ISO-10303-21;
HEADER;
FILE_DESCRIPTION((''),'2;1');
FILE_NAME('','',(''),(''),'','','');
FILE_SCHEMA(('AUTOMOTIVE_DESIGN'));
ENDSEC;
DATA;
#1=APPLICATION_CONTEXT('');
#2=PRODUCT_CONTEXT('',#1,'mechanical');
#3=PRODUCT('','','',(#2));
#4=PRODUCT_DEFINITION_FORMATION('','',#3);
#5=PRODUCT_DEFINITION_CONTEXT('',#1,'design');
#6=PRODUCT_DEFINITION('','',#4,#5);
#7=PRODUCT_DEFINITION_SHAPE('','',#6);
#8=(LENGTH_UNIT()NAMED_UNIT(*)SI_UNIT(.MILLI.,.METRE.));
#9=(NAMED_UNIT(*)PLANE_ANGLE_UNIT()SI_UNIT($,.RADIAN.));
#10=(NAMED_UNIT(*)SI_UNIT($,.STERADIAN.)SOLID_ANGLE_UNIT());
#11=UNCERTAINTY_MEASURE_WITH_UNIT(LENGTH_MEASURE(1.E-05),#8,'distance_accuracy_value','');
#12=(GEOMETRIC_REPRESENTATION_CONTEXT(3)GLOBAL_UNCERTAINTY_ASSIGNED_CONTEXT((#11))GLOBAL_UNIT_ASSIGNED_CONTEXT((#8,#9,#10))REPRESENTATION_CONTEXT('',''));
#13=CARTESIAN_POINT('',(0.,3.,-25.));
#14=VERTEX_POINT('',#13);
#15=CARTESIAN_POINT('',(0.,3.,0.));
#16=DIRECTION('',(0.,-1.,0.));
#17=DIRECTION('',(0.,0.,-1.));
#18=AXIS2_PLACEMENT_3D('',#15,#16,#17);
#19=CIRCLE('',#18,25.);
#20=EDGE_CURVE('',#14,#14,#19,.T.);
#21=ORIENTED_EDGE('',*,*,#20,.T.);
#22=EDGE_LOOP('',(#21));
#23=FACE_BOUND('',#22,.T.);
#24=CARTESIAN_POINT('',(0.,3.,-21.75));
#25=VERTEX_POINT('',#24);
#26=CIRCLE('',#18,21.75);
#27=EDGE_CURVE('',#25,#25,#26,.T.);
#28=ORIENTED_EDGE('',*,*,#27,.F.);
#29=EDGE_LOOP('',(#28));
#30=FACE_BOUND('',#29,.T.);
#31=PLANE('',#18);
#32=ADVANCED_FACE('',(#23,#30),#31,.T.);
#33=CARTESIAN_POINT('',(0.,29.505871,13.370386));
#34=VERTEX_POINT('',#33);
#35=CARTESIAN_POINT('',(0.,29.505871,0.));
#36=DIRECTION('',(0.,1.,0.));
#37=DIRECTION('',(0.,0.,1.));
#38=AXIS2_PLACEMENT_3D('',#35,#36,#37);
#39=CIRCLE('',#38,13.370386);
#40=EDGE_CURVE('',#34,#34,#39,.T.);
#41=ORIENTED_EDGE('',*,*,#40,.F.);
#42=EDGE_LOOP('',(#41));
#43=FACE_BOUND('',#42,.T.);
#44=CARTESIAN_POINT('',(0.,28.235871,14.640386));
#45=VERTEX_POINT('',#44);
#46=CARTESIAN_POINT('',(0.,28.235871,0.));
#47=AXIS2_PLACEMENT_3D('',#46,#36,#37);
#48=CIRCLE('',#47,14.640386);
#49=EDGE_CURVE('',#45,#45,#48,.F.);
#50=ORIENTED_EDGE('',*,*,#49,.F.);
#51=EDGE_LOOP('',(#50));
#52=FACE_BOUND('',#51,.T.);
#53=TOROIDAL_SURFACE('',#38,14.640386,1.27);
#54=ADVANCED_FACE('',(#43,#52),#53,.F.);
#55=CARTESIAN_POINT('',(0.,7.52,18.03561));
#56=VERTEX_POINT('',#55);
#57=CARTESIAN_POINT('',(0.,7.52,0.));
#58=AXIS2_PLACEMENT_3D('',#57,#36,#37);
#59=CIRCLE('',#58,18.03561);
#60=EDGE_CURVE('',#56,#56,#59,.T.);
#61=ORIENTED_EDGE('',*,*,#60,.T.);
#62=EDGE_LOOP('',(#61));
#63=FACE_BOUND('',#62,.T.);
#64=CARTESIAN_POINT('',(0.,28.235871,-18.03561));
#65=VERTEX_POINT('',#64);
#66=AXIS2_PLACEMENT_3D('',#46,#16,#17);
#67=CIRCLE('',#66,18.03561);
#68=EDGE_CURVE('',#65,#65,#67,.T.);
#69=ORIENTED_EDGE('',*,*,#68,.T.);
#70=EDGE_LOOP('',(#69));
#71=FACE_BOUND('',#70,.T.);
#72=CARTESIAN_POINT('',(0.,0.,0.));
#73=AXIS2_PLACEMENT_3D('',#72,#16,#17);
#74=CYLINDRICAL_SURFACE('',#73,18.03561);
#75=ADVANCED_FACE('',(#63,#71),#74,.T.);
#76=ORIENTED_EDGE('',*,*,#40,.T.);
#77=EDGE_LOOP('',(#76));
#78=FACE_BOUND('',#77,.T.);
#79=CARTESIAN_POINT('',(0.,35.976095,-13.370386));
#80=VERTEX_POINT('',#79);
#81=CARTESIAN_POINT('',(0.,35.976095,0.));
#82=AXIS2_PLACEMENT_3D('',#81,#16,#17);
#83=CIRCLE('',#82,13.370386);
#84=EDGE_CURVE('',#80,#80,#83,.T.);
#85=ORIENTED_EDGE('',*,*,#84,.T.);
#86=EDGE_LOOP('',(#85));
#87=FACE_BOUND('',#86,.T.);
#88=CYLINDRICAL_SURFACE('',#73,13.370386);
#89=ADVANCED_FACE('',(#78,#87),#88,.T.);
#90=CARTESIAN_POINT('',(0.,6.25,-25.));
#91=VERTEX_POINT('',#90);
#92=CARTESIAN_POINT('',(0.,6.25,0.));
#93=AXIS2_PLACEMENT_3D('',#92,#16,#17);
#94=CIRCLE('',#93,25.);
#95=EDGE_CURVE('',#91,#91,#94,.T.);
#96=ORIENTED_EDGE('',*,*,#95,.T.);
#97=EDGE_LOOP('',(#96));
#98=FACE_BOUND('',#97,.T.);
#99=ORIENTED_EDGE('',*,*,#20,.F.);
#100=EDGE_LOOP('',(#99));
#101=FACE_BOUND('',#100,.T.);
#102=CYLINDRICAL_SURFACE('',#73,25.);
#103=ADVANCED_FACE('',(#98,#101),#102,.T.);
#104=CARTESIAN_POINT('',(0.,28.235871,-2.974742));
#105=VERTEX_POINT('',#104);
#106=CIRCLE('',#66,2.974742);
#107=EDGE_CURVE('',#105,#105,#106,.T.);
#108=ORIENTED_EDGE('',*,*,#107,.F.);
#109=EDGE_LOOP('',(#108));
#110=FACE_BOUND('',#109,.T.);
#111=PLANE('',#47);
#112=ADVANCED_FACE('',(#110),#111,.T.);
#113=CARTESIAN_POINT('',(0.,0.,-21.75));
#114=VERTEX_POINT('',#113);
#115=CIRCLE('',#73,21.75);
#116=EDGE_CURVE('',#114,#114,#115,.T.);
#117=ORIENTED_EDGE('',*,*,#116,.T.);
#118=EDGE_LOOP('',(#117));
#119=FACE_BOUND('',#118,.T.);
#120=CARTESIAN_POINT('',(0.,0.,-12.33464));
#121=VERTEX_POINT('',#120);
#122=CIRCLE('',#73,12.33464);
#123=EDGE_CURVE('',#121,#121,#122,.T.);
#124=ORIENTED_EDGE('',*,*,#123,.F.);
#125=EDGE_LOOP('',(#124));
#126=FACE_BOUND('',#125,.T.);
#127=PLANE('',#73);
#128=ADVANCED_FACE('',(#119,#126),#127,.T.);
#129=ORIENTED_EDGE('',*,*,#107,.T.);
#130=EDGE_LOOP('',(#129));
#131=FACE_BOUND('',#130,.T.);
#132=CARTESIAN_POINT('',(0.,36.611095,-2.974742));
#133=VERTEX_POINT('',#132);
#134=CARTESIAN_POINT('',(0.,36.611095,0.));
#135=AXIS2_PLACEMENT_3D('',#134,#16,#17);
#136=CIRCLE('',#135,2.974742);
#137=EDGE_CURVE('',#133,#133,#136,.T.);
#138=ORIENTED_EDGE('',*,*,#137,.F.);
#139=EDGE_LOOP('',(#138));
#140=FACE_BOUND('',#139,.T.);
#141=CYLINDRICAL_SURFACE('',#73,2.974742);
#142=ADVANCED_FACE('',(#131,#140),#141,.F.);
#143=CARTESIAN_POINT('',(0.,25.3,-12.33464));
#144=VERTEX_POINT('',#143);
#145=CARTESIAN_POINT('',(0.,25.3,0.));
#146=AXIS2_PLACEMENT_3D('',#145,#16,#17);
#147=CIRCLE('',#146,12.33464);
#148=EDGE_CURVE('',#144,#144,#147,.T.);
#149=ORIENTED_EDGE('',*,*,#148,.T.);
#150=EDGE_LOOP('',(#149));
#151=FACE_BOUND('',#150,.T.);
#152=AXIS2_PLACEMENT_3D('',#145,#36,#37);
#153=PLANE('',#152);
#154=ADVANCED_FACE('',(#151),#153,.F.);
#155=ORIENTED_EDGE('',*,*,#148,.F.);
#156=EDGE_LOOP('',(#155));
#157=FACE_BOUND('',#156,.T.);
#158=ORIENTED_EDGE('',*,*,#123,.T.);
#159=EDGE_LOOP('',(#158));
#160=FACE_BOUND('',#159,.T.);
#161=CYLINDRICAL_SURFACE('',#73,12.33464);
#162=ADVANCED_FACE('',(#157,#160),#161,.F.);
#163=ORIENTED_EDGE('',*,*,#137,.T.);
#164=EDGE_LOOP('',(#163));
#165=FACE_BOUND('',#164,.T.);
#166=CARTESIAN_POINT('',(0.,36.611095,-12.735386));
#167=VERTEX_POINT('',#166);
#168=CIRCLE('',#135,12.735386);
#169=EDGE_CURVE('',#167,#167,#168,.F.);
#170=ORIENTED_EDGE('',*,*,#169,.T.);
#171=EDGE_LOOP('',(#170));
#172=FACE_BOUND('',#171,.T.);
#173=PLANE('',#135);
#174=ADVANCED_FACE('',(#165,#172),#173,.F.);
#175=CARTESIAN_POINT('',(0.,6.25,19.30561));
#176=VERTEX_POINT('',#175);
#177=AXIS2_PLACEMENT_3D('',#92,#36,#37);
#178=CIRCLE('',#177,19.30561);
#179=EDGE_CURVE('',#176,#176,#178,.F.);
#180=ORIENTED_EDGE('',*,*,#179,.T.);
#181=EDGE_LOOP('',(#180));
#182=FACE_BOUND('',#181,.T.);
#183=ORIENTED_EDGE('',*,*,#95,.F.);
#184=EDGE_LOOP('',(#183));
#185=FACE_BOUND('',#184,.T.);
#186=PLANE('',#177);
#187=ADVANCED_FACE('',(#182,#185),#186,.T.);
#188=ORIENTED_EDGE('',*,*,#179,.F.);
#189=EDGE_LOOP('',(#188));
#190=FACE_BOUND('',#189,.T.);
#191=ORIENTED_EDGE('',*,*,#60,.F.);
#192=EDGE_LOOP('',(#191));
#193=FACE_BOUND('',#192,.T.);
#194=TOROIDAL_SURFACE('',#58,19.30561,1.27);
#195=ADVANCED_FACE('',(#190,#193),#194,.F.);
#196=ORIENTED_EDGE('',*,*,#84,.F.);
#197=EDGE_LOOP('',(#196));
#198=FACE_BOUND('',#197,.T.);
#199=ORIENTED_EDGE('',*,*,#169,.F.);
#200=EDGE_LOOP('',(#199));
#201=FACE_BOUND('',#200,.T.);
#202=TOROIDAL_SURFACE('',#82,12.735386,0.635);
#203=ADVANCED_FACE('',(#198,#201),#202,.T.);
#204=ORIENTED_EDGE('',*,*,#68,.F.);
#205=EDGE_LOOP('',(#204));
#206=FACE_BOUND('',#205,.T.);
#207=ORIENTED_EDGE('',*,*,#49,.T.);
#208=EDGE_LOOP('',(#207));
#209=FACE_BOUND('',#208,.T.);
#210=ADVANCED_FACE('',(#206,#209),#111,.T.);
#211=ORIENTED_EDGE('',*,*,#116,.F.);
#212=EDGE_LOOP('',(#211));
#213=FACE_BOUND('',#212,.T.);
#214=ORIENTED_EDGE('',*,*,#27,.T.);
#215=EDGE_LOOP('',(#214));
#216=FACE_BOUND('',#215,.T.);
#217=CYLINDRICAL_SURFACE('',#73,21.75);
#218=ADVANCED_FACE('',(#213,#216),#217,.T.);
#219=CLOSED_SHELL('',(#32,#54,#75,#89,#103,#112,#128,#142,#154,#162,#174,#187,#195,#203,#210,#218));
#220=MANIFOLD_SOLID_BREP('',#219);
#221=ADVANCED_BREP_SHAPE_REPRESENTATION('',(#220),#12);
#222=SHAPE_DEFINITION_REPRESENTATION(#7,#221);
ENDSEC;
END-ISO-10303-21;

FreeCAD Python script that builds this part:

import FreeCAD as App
import Part
import Sketcher
from FreeCAD import Vector
Q = App.Units.Quantity


def edges_at(feature, points):
    """Names of the edges that pass closest to the given points."""
    edges = feature.Shape.Edges
    near = lambda p: min(range(len(edges)), key=lambda i: edges[i].distToShape(Part.Vertex(*p))[0])
    return sorted({f"Edge{near(p) + 1}" for p in points})


def add_polygon(sketch, points):
    """Adds a closed chain of lines whose ends are joined by coincident constraints."""
    first, n = sketch.GeometryCount, len(points)
    for a, b in zip(points, points[1:] + points[:1]):
        sketch.addGeometry(Part.LineSegment(App.Vector(*a, 0), App.Vector(*b, 0)), False)
    for i in range(n):
        sketch.addConstraint(Sketcher.Constraint("Coincident", first + i, 2, first + (i + 1) % n, 1))

doc = App.newDocument("Part")
body = doc.addObject("PartDesign::Body", "Body")

sketch1 = body.newObject("Sketcher::SketchObject", "Sketch")
sketch1.AttachmentSupport = (doc.getObject("XY_Plane"), [""])
sketch1.MapMode = "FlatFace"
add_polygon(sketch1, [(12.33464, 0), (21.75, 0), (21.75, 3), (25, 3), (25, 6.25), (18.03561, 6.25), (18.03561, 28.235871), (13.370386, 28.235871), (13.370386, 36.611095), (2.974742, 36.611095), (2.974742, 28.235871), (0, 28.235871), (0, 25.3), (12.33464, 25.3)])
sketch1.addConstraint([
    Sketcher.Constraint("Horizontal", 0),
    Sketcher.Constraint("Vertical", 1),
    Sketcher.Constraint("Horizontal", 2),
    Sketcher.Constraint("Vertical", 3),
    Sketcher.Constraint("Horizontal", 4),
    Sketcher.Constraint("Vertical", 5),
    Sketcher.Constraint("Horizontal", 6),
    Sketcher.Constraint("Vertical", 7),
    Sketcher.Constraint("Horizontal", 8),
    Sketcher.Constraint("Vertical", 9),
    Sketcher.Constraint("Horizontal", 10),
    Sketcher.Constraint("Vertical", 11),
    Sketcher.Constraint("Horizontal", 12),
    Sketcher.Constraint("Vertical", 13),
    Sketcher.Constraint("PointOnObject", 0, 2, -1),
    Sketcher.Constraint("PointOnObject", 10, 2, -2),
    Sketcher.Constraint("Horizontal", 6, 2, 9, 2),
    Sketcher.Constraint("Equal", 2, 3),
    Sketcher.Constraint("DistanceY", 1, 1, 1, 2, Q("3 mm")),
    Sketcher.Constraint("DistanceY", 13, 2, 13, 1, Q("25.3 mm")),
    Sketcher.Constraint("DistanceX", -1, 1, 2, 2, Q("25 mm")),
    Sketcher.Constraint("DistanceX", 2, 1, 2, 2, Q("3.25 mm")),
    Sketcher.Constraint("DistanceX", 0, 1, 0, 2, Q("9.41536 mm")),
    Sketcher.Constraint("DistanceX", 4, 2, 4, 1, Q("6.96439 mm")),
    Sketcher.Constraint("DistanceX", 10, 2, 10, 1, Q("2.974742 mm")),
    Sketcher.Constraint("DistanceY", 5, 1, 5, 2, Q("21.985871 mm")),
    Sketcher.Constraint("DistanceX", 6, 2, 6, 1, Q("4.665225 mm")),
    Sketcher.Constraint("DistanceY", 7, 1, 7, 2, Q("8.375224 mm")),
])
revolution = body.newObject("PartDesign::Revolution", "Revolution")
revolution.Profile = sketch1
revolution.ReferenceAxis = (sketch1, ["V_Axis"])
revolution.Angle = 360
doc.recompute()

fillet = body.newObject("PartDesign::Fillet", "Fillet")
fillet.Base = (revolution, edges_at(revolution, [(-13.37, 28.236, 0), (-18.036, 6.25, 0)]))
fillet.Radius = 1.27
doc.recompute()

fillet2 = body.newObject("PartDesign::Fillet", "Fillet001")
fillet2.Base = (fillet, edges_at(fillet, [(-13.37, 36.611, 0)]))
fillet2.Radius = 0.635

doc.recompute()
